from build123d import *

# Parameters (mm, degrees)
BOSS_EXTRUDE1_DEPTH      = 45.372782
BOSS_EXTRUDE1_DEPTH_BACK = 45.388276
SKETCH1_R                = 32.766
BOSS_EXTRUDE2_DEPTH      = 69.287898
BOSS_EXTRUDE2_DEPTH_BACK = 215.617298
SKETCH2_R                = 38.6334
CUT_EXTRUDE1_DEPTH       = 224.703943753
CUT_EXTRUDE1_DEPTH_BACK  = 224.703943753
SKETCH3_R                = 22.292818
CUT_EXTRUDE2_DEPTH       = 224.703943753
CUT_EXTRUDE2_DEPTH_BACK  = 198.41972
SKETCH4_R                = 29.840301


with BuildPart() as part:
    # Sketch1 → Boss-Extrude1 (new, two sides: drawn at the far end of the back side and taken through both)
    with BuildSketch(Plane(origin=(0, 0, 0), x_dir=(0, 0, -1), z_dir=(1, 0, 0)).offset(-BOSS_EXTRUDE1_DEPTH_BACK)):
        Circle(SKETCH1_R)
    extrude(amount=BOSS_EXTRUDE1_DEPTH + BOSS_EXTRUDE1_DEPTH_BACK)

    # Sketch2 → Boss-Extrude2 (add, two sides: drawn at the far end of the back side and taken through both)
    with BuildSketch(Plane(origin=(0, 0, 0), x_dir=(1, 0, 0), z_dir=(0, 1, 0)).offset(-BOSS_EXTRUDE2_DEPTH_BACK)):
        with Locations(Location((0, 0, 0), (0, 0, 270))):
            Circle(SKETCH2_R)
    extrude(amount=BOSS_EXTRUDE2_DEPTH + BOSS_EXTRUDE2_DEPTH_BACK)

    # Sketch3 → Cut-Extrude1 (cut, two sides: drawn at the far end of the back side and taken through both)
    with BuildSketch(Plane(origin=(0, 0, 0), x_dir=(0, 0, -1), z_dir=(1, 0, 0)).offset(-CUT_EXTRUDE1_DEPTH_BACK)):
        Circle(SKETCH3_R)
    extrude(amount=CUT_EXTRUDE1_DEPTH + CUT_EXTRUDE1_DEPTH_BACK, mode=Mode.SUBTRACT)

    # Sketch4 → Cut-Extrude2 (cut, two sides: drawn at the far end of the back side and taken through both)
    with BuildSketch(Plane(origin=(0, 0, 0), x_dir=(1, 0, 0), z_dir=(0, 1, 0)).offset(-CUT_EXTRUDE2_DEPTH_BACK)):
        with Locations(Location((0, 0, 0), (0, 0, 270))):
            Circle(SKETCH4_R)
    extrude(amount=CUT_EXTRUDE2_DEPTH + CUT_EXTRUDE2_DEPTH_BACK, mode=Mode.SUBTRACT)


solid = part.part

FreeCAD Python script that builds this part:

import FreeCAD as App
import Part
import Sketcher
Q = App.Units.Quantity

doc = App.newDocument("Part")
body = doc.addObject("PartDesign::Body", "Body")

sketch1 = body.newObject("Sketcher::SketchObject", "Sketch")
sketch1.AttachmentSupport = (doc.getObject("YZ_Plane"), [""])
sketch1.MapMode = "FlatFace"
sketch1.addGeometry(Part.Circle(App.Vector(0, 0, 0), App.Vector(0, 0, 1), 33), False)
sketch1.addConstraint(Sketcher.Constraint("Coincident", 0, 3, -1, 1))
sketch1.addConstraint(Sketcher.Constraint("Diameter", 0, Q("2.58 in")))
pad1 = body.newObject("PartDesign::Pad", "Pad")
pad1.Profile = sketch1
pad1.Type = "TwoLengths"
pad1.Length = 45.372782
pad1.Length2 = 45.388276

sketch2 = body.newObject("Sketcher::SketchObject", "Sketch001")
sketch2.AttachmentSupport = (doc.getObject("XZ_Plane"), [""])
sketch2.MapMode = "FlatFace"
sketch2.addGeometry(Part.Circle(App.Vector(0, 0, 0), App.Vector(0, 0, 1), 39), False)
sketch2.addConstraint(Sketcher.Constraint("Coincident", 0, 3, -1, 1))
sketch2.addConstraint(Sketcher.Constraint("Diameter", 0, Q("3.042 in")))
pad2 = body.newObject("PartDesign::Pad", "Pad001")
pad2.Profile = sketch2
pad2.Type = "TwoLengths"
pad2.Length = 69.287898
pad2.Length2 = 215.617298
pad2.Reversed = True

sketch3 = body.newObject("Sketcher::SketchObject", "Sketch002")
sketch3.AttachmentSupport = (doc.getObject("YZ_Plane"), [""])
sketch3.MapMode = "FlatFace"
sketch3.addGeometry(Part.Circle(App.Vector(0, 0, 0), App.Vector(0, 0, 1), 22), False)
sketch3.addConstraint(Sketcher.Constraint("Coincident", 0, 3, -1, 1))
sketch3.addConstraint(Sketcher.Constraint("Diameter", 0, Q("44.585636 mm")))
pocket1 = body.newObject("PartDesign::Pocket", "Pocket")
pocket1.Profile = sketch3
pocket1.Type = "ThroughAll"
pocket1.Midplane = True

sketch4 = body.newObject("Sketcher::SketchObject", "Sketch003")
sketch4.AttachmentSupport = (doc.getObject("XZ_Plane"), [""])
sketch4.MapMode = "FlatFace"
sketch4.addGeometry(Part.Circle(App.Vector(0, 0, 0), App.Vector(0, 0, 1), 30), False)
sketch4.addConstraint(Sketcher.Constraint("Coincident", 0, 3, -1, 1))
sketch4.addConstraint(Sketcher.Constraint("Diameter", 0, Q("59.680602 mm")))
pocket2 = body.newObject("PartDesign::Pocket", "Pocket001")
pocket2.Profile = sketch4
pocket2.Type = "TwoLengths"
pocket2.Length = 224.703944
pocket2.Length2 = Q("7.8118 in")

doc.recompute()
